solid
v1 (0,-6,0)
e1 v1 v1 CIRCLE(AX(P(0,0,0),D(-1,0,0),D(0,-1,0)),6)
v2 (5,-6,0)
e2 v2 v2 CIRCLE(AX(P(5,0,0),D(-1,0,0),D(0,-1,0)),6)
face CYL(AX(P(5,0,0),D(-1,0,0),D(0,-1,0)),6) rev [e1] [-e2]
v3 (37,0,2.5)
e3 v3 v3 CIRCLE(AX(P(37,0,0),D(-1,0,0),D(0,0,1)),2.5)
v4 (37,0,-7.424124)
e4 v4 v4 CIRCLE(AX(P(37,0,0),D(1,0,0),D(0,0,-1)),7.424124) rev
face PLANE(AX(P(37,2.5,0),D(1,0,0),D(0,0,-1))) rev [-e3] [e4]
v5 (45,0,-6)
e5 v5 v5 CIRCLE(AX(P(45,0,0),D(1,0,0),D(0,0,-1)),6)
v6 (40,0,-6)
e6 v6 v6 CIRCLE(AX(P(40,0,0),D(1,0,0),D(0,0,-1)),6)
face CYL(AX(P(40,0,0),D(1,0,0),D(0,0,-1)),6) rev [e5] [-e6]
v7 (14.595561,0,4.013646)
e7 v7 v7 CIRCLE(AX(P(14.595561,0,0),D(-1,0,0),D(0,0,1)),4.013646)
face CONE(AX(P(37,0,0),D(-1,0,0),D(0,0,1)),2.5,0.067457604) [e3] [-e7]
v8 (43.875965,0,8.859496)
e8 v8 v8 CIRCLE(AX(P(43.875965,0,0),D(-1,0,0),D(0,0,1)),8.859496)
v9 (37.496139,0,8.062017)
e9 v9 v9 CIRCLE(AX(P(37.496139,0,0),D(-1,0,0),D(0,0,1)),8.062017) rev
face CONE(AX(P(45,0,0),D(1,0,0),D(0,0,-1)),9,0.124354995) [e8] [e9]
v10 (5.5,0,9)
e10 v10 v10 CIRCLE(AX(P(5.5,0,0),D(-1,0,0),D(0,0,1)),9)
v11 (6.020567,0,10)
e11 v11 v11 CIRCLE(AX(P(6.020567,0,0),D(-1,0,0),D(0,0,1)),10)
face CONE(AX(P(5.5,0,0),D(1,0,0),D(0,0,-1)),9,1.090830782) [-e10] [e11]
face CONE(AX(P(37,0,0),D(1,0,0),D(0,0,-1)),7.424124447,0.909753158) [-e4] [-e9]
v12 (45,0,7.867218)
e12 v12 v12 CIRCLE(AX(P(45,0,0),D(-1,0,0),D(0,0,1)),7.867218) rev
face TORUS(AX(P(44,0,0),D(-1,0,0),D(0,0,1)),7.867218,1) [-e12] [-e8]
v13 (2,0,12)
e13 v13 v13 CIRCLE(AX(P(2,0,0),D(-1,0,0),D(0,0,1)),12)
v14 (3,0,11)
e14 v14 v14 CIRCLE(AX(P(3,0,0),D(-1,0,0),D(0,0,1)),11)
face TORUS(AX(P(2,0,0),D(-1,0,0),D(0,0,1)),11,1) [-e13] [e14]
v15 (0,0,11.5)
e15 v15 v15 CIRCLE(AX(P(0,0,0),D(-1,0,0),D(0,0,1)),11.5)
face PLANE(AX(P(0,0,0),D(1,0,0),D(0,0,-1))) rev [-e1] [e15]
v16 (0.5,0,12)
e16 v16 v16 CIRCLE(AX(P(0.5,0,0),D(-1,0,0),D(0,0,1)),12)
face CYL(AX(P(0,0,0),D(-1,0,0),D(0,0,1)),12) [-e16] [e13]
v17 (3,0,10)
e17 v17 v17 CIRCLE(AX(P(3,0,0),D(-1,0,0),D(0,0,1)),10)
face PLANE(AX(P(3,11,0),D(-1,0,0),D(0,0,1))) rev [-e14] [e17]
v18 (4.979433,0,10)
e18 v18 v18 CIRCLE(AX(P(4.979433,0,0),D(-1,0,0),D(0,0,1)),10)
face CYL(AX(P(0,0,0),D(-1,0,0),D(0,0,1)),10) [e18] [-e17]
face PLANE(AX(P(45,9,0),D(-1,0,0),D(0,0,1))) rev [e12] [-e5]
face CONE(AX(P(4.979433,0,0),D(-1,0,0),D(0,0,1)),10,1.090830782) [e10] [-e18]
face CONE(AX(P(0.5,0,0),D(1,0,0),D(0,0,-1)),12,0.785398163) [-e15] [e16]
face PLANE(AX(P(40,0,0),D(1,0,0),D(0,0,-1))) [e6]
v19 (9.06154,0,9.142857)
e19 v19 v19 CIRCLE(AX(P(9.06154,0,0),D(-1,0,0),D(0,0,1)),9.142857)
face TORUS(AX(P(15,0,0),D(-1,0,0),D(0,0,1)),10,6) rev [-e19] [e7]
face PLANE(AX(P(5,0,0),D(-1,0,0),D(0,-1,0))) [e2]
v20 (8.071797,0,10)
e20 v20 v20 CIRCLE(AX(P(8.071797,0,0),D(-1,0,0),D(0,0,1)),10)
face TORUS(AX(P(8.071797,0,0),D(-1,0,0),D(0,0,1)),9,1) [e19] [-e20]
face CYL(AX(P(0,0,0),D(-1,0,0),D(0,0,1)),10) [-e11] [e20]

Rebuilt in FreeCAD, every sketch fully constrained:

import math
import FreeCAD as App
import Part
import Sketcher
from FreeCAD import Vector
Q = App.Units.Quantity


def edges_at(feature, points):
    """Names of the edges that pass closest to the given points."""
    edges = feature.Shape.Edges
    near = lambda p: min(range(len(edges)), key=lambda i: edges[i].distToShape(Part.Vertex(*p))[0])
    return sorted({f"Edge{near(p) + 1}" for p in points})


def add_polygon(sketch, points):
    """Adds a closed chain of lines whose ends are joined by coincident constraints."""
    first, n = sketch.GeometryCount, len(points)
    for a, b in zip(points, points[1:] + points[:1]):
        sketch.addGeometry(Part.LineSegment(App.Vector(*a, 0), App.Vector(*b, 0)), False)
    for i in range(n):
        sketch.addConstraint(Sketcher.Constraint("Coincident", first + i, 2, first + (i + 1) % n, 1))

doc = App.newDocument("Part")
body = doc.addObject("PartDesign::Body", "Body")

# Sketch on XY plane
sketch1 = body.newObject("Sketcher::SketchObject", "Sketch")
sketch1.AttachmentSupport = (doc.getObject("XY_Plane"), [""])
sketch1.MapMode = "FlatFace"
sketch1.addGeometry([
    Part.LineSegment(Vector(0, 11.5, 0), Vector(0, 0, 0)),  # 0
    Part.LineSegment(Vector(0, 0, 0), Vector(45, 0, 0)),  # 1
    Part.LineSegment(Vector(45, 0, 0), Vector(45, 9, 0)),  # 2
    Part.LineSegment(Vector(45, 9, 0), Vector(37, 8, 0)),  # 3
    Part.LineSegment(Vector(37, 8, 0), Vector(37, 2.5, 0)),  # 4
    Part.LineSegment(Vector(37, 2.5, 0), Vector(14.595561, 4.013646, 0)),  # 5
    Part.ArcOfCircle(Part.Circle(Vector(15, 10, 0), Vector(0, 0, 1), 6), math.radians(-171.786789), math.radians(-93.865036)),  # 6
    Part.ArcOfCircle(Part.Circle(Vector(8.071797, 9, 0), Vector(0, 0, 1), 1), math.radians(8.213211), math.radians(90)),  # 7
    Part.LineSegment(Vector(8.071797, 10, 0), Vector(3, 10, 0)),  # 8
    Part.LineSegment(Vector(3, 10, 0), Vector(3, 11, 0)),  # 9
    Part.ArcOfCircle(Part.Circle(Vector(2, 11, 0), Vector(0, 0, 1), 1), math.radians(0), math.radians(90)),  # 10
    Part.LineSegment(Vector(2, 12, 0), Vector(0.5, 12, 0)),  # 11
    Part.LineSegment(Vector(0.5, 12, 0), Vector(0, 11.5, 0)),  # 12
], False)
sketch1.addConstraint([
    Sketcher.Constraint("Coincident", 0, 2, 1, 1),
    Sketcher.Constraint("Coincident", 1, 2, 2, 1),
    Sketcher.Constraint("Coincident", 2, 2, 3, 1),
    Sketcher.Constraint("Coincident", 3, 2, 4, 1),
    Sketcher.Constraint("Coincident", 4, 2, 5, 1),
    Sketcher.Constraint("Tangent", 5, 2, 6, 2),
    Sketcher.Constraint("Tangent", 6, 1, 7, 1),
    Sketcher.Constraint("Tangent", 7, 2, 8, 1),
    Sketcher.Constraint("Coincident", 8, 2, 9, 1),
    Sketcher.Constraint("Tangent", 9, 2, 10, 1),
    Sketcher.Constraint("Tangent", 10, 2, 11, 1),
    Sketcher.Constraint("Coincident", 11, 2, 12, 1),
    Sketcher.Constraint("Coincident", 12, 2, 0, 1),
    Sketcher.Constraint("Vertical", 0),
    Sketcher.Constraint("Horizontal", 1),
    Sketcher.Constraint("Vertical", 2),
    Sketcher.Constraint("Vertical", 4),
    Sketcher.Constraint("Horizontal", 8),
    Sketcher.Constraint("Vertical", 9),
    Sketcher.Constraint("Horizontal", 11),
    Sketcher.Constraint("Coincident", 0, 2, -1, 1),
    Sketcher.Constraint("Equal", 7, 10),
    Sketcher.Constraint("Horizontal", 7, 3, 2, 2),
    Sketcher.Constraint("Horizontal", 6, 3, 7, 2),
    Sketcher.Constraint("Radius", 6, Q("6 mm")),
    Sketcher.Constraint("Radius", 7, Q("1 mm")),
    Sketcher.Constraint("DistanceX", 1, 1, 1, 2, Q("45 mm")),
    Sketcher.Constraint("DistanceY", 2, 1, 2, 2, Q("9 mm")),
    Sketcher.Constraint("DistanceY", 9, 1, 9, 2, Q("1 mm")),
    Sketcher.Constraint("Angle", 12, Q("-135 deg")),
    Sketcher.Constraint("DistanceX", 11, 2, 11, 1, Q("1.5 mm")),
    Sketcher.Constraint("DistanceY", 0, 2, 0, 1, Q("11.5 mm")),
    Sketcher.Constraint("DistanceY", 4, 2, 4, 1, Q("5.5 mm")),
    Sketcher.Constraint("DistanceX", -1, 1, 6, 3, Q("15 mm")),
    Sketcher.Constraint("DistanceX", -1, 1, 3, 2, Q("37 mm")),
    Sketcher.Constraint("DistanceY", -1, 1, 3, 2, Q("8 mm")),
])
revolution = body.newObject("PartDesign::Revolution", "Revolution")
revolution.Profile = sketch1
revolution.ReferenceAxis = (sketch1, ["H_Axis"])
revolution.Angle = 360

# Sketch on XY plane
sketch2 = body.newObject("Sketcher::SketchObject", "Sketch001")
sketch2.AttachmentSupport = (doc.getObject("XY_Plane"), [""])
sketch2.MapMode = "FlatFace"
add_polygon(sketch2, [(4.979433, 10), (5.5, 9), (6.020567, 10)])  # lines 0-2
sketch2.addConstraint([
    Sketcher.Constraint("Horizontal", 2),
    Sketcher.Constraint("Equal", 0, 1),
    Sketcher.Constraint("DistanceY", -1, 1, 0, 2, Q("9 mm")),
    Sketcher.Constraint("DistanceY", -1, 1, 1, 2, Q("10 mm")),
    Sketcher.Constraint("Angle", 0, Q("-62.5 deg")),
    Sketcher.Constraint("DistanceX", -1, 1, 0, 2, Q("5.5 mm")),
])
groove = body.newObject("PartDesign::Groove", "Groove")
groove.Profile = sketch2
groove.ReferenceAxis = (sketch2, ["H_Axis"])
groove.Angle = 360

# Sketch on YZ plane
sketch3 = body.newObject("Sketcher::SketchObject", "Sketch002")
sketch3.AttachmentSupport = (doc.getObject("YZ_Plane"), [""])
sketch3.MapMode = "FlatFace"
sketch3.addGeometry(Part.Circle(Vector(0, 0, 0), Vector(0, 0, 1), 6), False)
sketch3.addConstraint([
    Sketcher.Constraint("Coincident", 0, 3, -1, 1),
    Sketcher.Constraint("Diameter", 0, Q("12 mm")),
])
pocket1 = body.newObject("PartDesign::Pocket", "Pocket")
pocket1.Profile = sketch3
pocket1.Length = 5
pocket1.Reversed = True

# Sketch on YZ plane
sketch4 = body.newObject("Sketcher::SketchObject", "Sketch003")
sketch4.AttachmentSupport = (doc.getObject("YZ_Plane"), [""])
sketch4.MapMode = "FlatFace"
sketch4.AttachmentOffset = App.Placement(Vector(0, 0, 45), App.Rotation())
sketch4.addGeometry(Part.Circle(Vector(0, 0, 0), Vector(0, 0, 1), 6), False)
sketch4.addConstraint([
    Sketcher.Constraint("Coincident", 0, 3, -1, 1),
    Sketcher.Constraint("Diameter", 0, Q("12 mm")),
])
pocket2 = body.newObject("PartDesign::Pocket", "Pocket001")
pocket2.Profile = sketch4
pocket2.Length = 5
doc.recompute()

fillet = body.newObject("PartDesign::Fillet", "Fillet")
fillet.Base = (pocket2, edges_at(pocket2, [(45, 0, -9)]))
fillet.Radius = 1
doc.recompute()

chamfer = body.newObject("PartDesign::Chamfer", "Chamfer")
chamfer.Base = (fillet, edges_at(fillet, [(37, 0, -8)]))
chamfer.ChamferType = "Two distances"
chamfer.Size = 0.5
chamfer.Size2 = 0.575876

doc.recompute()
